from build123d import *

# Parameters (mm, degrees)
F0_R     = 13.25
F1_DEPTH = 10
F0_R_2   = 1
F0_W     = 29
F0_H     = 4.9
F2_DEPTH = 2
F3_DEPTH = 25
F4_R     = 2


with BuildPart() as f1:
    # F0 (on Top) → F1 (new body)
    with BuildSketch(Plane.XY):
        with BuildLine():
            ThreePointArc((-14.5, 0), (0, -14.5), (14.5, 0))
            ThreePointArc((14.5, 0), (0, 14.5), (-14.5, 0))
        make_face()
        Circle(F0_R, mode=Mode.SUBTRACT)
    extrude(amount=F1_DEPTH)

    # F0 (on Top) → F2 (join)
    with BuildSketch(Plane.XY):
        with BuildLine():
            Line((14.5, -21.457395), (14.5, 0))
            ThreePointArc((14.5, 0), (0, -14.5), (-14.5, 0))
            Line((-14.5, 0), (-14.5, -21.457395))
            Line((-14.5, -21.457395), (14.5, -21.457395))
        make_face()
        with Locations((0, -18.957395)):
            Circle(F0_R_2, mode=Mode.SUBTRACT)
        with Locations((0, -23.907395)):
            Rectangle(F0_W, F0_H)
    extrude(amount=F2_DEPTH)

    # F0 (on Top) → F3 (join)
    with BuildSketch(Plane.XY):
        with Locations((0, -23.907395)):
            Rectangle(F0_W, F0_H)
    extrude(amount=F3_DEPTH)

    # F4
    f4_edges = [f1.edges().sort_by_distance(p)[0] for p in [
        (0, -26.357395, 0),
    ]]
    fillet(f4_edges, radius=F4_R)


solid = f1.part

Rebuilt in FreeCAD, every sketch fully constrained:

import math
import FreeCAD as App
import Part
import Sketcher

V = App.Vector


def edges_at(feature, points):
    """Names of the edges that pass closest to the given points."""
    edges = feature.Shape.Edges
    near = lambda p: min(range(len(edges)), key=lambda i: edges[i].distToShape(Part.Vertex(*p))[0])
    return sorted({f"Edge{near(p) + 1}" for p in points})


def add_polygon(sketch, points):
    """Adds a closed chain of lines whose ends are joined by coincident constraints."""
    first, n = sketch.GeometryCount, len(points)
    for a, b in zip(points, points[1:] + points[:1]):
        sketch.addGeometry(Part.LineSegment(App.Vector(*a, 0), App.Vector(*b, 0)), False)
    for i in range(n):
        sketch.addConstraint(Sketcher.Constraint("Coincident", first + i, 2, first + (i + 1) % n, 1))

doc = App.newDocument("Part")
body = doc.addObject("PartDesign::Body", "Body")

# Sketch on XY plane
sketch1 = body.newObject("Sketcher::SketchObject", "Sketch")
sketch1.AttachmentSupport = (doc.getObject("XY_Plane"), [""])
sketch1.MapMode = "FlatFace"
sketch1.addGeometry([
    Part.Circle(V(0, 0, 0), V(0, 0, 1), 14),
    Part.Circle(V(0, 0, 0), V(0, 0, 1), 13),
], False)
sketch1.addConstraint([
    Sketcher.Constraint("Coincident", 0, 3, -1, 1),
    Sketcher.Constraint("Coincident", 1, 3, -1, 1),
    Sketcher.Constraint("Diameter", 0, 29.0),
    Sketcher.Constraint("Diameter", 1, 26.5),
])
pad1 = body.newObject("PartDesign::Pad", "Pad")
pad1.Profile = sketch1
pad1.Length = 10

# Sketch on XY plane
sketch2 = body.newObject("Sketcher::SketchObject", "Sketch001")
sketch2.AttachmentSupport = (doc.getObject("XY_Plane"), [""])
sketch2.MapMode = "FlatFace"
sketch2.addGeometry([
    Part.ArcOfCircle(Part.Circle(V(0, 0, 0), V(0, 0, 1), 14.5), math.radians(180), math.radians(360)),  # 0
    Part.LineSegment(V(-14.5, 0, 0), V(-14.5, -26.4, 0)),  # 1
    Part.LineSegment(V(-14.5, -26.4, 0), V(14.5, -26.4, 0)),  # 2
    Part.LineSegment(V(14.5, -26.4, 0), V(14.5, 0, 0)),  # 3
    Part.Circle(V(0, -19, 0), V(0, 0, 1), 1),  # 4
], False)
sketch2.addConstraint([
    Sketcher.Constraint("Tangent", 0, 1, 1, 1),
    Sketcher.Constraint("Coincident", 1, 2, 2, 1),
    Sketcher.Constraint("Coincident", 2, 2, 3, 1),
    Sketcher.Constraint("Tangent", 3, 2, 0, 2),
    Sketcher.Constraint("Vertical", 1),
    Sketcher.Constraint("Horizontal", 2),
    Sketcher.Constraint("Vertical", 3),
    Sketcher.Constraint("Coincident", 0, 3, -1, 1),
    Sketcher.Constraint("PointOnObject", 4, 3, -2),
    Sketcher.Constraint("Diameter", 4, 2.0),
    Sketcher.Constraint("Radius", 0, 14.5),
    Sketcher.Constraint("DistanceY", 1, 2, 4, 3, 7.4),
    Sketcher.Constraint("DistanceY", 1, 2, 1, 1, 26.357395),
])
pad2 = body.newObject("PartDesign::Pad", "Pad001")
pad2.Profile = sketch2
pad2.Length = 2

# Sketch on XY plane
sketch3 = body.newObject("Sketcher::SketchObject", "Sketch002")
sketch3.AttachmentSupport = (doc.getObject("XY_Plane"), [""])
sketch3.MapMode = "FlatFace"
add_polygon(sketch3, [(-14.5, -21.5), (-14.5, -26.4), (14.5, -26.4), (14.5, -21.5)])  # lines 0-3
sketch3.addConstraint([
    Sketcher.Constraint("Vertical", 0),
    Sketcher.Constraint("Horizontal", 1),
    Sketcher.Constraint("Vertical", 2),
    Sketcher.Constraint("Horizontal", 3),
    Sketcher.Constraint("DistanceX", 1, 1, 1, 2, 29.0),
    Sketcher.Constraint("DistanceY", 0, 2, 0, 1, 4.9),
    Sketcher.Constraint("DistanceX", 0, 2, -1, 1, 14.5),
    Sketcher.Constraint("DistanceY", 0, 2, -1, 1, 26.357395),
])
pad3 = body.newObject("PartDesign::Pad", "Pad002")
pad3.Profile = sketch3
pad3.Length = 25
doc.recompute()

fillet = body.newObject("PartDesign::Fillet", "Fillet")
fillet.Base = (pad3, edges_at(pad3, [(0, -26.357, 0)]))
fillet.Radius = 2

doc.recompute()
